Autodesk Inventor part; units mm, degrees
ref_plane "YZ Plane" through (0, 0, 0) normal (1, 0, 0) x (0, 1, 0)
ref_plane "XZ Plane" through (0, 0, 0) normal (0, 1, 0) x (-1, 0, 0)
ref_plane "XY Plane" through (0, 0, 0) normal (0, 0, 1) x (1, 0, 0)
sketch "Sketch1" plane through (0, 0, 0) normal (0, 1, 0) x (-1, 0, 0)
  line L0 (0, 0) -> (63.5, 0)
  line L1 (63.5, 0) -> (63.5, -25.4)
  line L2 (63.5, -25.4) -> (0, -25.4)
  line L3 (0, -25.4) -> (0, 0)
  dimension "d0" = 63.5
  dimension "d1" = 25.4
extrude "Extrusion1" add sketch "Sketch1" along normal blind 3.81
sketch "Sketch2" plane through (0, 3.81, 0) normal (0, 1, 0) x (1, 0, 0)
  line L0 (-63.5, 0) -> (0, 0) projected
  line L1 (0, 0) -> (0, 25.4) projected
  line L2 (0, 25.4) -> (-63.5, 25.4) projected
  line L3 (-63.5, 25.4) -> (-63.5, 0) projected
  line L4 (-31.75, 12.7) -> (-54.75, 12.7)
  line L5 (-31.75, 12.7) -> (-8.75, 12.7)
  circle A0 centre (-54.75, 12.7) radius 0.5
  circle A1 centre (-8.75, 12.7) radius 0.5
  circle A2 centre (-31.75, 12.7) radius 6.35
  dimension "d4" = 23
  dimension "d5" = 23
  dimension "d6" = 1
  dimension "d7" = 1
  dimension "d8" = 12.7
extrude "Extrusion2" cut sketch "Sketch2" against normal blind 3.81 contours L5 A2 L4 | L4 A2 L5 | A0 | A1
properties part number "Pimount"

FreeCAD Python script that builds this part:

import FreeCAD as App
import Part
import Sketcher
Q = App.Units.Quantity

doc = App.newDocument("Part")
body = doc.addObject("PartDesign::Body", "Body")

# Sketch on XZ plane
sketch1 = body.newObject("Sketcher::SketchObject", "Sketch")
sketch1.AttachmentSupport = (doc.getObject("XZ_Plane"), [""])
sketch1.MapMode = "FlatFace"
sketch1.addGeometry([
    Part.LineSegment(App.Vector(-63.5, 0, 0), App.Vector(0, 0, 0)),
    Part.LineSegment(App.Vector(0, 0, 0), App.Vector(0, -25.4, 0)),
    Part.LineSegment(App.Vector(0, -25.4, 0), App.Vector(-63.5, -25.4, 0)),
    Part.LineSegment(App.Vector(-63.5, -25.4, 0), App.Vector(-63.5, 0, 0)),
], False)
sketch1.addConstraint([
    Sketcher.Constraint("Coincident", 0, 2, 1, 1),
    Sketcher.Constraint("Coincident", 1, 2, 2, 1),
    Sketcher.Constraint("Coincident", 2, 2, 3, 1),
    Sketcher.Constraint("Coincident", 3, 2, 0, 1),
    Sketcher.Constraint("Horizontal", 0),
    Sketcher.Constraint("Vertical", 1),
    Sketcher.Constraint("Horizontal", 2),
    Sketcher.Constraint("Vertical", 3),
    Sketcher.Constraint("Coincident", 0, 2, -1, 1),
    Sketcher.Constraint("DistanceY", 1, 2, 1, 1, Q("1 in")),
    Sketcher.Constraint("DistanceX", 0, 1, 0, 2, Q("2.5 in")),
])
pad1 = body.newObject("PartDesign::Pad", "Pad")
pad1.Profile = sketch1
pad1.Length = Q("0.15 in")
pad1.Reversed = True

# Sketch on XZ plane
sketch2 = body.newObject("Sketcher::SketchObject", "Sketch001")
sketch2.AttachmentSupport = (doc.getObject("XZ_Plane"), [""])
sketch2.MapMode = "FlatFace"
sketch2.AttachmentOffset = App.Placement(App.Vector(0, 0, -0.15 * 25.4), App.Rotation())
sketch2.addGeometry([
    Part.Circle(App.Vector(-31.75, -12.7, 0), App.Vector(0, 0, 1), 6.35),
    Part.Circle(App.Vector(-54.75, -12.7, 0), App.Vector(0, 0, 1), 0.5),
    Part.Circle(App.Vector(-8.75, -12.7, 0), App.Vector(0, 0, 1), 0.5),
], False)
sketch2.addConstraint([
    Sketcher.Constraint("Equal", 1, 2),
    Sketcher.Constraint("Horizontal", 0, 3, 1, 3),
    Sketcher.Constraint("Horizontal", 1, 3, 2, 3),
    Sketcher.Constraint("Diameter", 0, Q("0.5 in")),
    Sketcher.Constraint("DistanceY", 0, 3, -1, 1, Q("0.5 in")),
    Sketcher.Constraint("Diameter", 1, 1.0),
    Sketcher.Constraint("DistanceX", 1, 3, 0, 3, Q("0.9055 in")),
    Sketcher.Constraint("DistanceX", 0, 3, 2, 3, Q("0.9055 in")),
    Sketcher.Constraint("DistanceX", 0, 3, -1, 1, Q("1.25 in")),
])
pocket1 = body.newObject("PartDesign::Pocket", "Pocket")
pocket1.Profile = sketch2
pocket1.Length = Q("0.15 in")
pocket1.Reversed = True

doc.recompute()
